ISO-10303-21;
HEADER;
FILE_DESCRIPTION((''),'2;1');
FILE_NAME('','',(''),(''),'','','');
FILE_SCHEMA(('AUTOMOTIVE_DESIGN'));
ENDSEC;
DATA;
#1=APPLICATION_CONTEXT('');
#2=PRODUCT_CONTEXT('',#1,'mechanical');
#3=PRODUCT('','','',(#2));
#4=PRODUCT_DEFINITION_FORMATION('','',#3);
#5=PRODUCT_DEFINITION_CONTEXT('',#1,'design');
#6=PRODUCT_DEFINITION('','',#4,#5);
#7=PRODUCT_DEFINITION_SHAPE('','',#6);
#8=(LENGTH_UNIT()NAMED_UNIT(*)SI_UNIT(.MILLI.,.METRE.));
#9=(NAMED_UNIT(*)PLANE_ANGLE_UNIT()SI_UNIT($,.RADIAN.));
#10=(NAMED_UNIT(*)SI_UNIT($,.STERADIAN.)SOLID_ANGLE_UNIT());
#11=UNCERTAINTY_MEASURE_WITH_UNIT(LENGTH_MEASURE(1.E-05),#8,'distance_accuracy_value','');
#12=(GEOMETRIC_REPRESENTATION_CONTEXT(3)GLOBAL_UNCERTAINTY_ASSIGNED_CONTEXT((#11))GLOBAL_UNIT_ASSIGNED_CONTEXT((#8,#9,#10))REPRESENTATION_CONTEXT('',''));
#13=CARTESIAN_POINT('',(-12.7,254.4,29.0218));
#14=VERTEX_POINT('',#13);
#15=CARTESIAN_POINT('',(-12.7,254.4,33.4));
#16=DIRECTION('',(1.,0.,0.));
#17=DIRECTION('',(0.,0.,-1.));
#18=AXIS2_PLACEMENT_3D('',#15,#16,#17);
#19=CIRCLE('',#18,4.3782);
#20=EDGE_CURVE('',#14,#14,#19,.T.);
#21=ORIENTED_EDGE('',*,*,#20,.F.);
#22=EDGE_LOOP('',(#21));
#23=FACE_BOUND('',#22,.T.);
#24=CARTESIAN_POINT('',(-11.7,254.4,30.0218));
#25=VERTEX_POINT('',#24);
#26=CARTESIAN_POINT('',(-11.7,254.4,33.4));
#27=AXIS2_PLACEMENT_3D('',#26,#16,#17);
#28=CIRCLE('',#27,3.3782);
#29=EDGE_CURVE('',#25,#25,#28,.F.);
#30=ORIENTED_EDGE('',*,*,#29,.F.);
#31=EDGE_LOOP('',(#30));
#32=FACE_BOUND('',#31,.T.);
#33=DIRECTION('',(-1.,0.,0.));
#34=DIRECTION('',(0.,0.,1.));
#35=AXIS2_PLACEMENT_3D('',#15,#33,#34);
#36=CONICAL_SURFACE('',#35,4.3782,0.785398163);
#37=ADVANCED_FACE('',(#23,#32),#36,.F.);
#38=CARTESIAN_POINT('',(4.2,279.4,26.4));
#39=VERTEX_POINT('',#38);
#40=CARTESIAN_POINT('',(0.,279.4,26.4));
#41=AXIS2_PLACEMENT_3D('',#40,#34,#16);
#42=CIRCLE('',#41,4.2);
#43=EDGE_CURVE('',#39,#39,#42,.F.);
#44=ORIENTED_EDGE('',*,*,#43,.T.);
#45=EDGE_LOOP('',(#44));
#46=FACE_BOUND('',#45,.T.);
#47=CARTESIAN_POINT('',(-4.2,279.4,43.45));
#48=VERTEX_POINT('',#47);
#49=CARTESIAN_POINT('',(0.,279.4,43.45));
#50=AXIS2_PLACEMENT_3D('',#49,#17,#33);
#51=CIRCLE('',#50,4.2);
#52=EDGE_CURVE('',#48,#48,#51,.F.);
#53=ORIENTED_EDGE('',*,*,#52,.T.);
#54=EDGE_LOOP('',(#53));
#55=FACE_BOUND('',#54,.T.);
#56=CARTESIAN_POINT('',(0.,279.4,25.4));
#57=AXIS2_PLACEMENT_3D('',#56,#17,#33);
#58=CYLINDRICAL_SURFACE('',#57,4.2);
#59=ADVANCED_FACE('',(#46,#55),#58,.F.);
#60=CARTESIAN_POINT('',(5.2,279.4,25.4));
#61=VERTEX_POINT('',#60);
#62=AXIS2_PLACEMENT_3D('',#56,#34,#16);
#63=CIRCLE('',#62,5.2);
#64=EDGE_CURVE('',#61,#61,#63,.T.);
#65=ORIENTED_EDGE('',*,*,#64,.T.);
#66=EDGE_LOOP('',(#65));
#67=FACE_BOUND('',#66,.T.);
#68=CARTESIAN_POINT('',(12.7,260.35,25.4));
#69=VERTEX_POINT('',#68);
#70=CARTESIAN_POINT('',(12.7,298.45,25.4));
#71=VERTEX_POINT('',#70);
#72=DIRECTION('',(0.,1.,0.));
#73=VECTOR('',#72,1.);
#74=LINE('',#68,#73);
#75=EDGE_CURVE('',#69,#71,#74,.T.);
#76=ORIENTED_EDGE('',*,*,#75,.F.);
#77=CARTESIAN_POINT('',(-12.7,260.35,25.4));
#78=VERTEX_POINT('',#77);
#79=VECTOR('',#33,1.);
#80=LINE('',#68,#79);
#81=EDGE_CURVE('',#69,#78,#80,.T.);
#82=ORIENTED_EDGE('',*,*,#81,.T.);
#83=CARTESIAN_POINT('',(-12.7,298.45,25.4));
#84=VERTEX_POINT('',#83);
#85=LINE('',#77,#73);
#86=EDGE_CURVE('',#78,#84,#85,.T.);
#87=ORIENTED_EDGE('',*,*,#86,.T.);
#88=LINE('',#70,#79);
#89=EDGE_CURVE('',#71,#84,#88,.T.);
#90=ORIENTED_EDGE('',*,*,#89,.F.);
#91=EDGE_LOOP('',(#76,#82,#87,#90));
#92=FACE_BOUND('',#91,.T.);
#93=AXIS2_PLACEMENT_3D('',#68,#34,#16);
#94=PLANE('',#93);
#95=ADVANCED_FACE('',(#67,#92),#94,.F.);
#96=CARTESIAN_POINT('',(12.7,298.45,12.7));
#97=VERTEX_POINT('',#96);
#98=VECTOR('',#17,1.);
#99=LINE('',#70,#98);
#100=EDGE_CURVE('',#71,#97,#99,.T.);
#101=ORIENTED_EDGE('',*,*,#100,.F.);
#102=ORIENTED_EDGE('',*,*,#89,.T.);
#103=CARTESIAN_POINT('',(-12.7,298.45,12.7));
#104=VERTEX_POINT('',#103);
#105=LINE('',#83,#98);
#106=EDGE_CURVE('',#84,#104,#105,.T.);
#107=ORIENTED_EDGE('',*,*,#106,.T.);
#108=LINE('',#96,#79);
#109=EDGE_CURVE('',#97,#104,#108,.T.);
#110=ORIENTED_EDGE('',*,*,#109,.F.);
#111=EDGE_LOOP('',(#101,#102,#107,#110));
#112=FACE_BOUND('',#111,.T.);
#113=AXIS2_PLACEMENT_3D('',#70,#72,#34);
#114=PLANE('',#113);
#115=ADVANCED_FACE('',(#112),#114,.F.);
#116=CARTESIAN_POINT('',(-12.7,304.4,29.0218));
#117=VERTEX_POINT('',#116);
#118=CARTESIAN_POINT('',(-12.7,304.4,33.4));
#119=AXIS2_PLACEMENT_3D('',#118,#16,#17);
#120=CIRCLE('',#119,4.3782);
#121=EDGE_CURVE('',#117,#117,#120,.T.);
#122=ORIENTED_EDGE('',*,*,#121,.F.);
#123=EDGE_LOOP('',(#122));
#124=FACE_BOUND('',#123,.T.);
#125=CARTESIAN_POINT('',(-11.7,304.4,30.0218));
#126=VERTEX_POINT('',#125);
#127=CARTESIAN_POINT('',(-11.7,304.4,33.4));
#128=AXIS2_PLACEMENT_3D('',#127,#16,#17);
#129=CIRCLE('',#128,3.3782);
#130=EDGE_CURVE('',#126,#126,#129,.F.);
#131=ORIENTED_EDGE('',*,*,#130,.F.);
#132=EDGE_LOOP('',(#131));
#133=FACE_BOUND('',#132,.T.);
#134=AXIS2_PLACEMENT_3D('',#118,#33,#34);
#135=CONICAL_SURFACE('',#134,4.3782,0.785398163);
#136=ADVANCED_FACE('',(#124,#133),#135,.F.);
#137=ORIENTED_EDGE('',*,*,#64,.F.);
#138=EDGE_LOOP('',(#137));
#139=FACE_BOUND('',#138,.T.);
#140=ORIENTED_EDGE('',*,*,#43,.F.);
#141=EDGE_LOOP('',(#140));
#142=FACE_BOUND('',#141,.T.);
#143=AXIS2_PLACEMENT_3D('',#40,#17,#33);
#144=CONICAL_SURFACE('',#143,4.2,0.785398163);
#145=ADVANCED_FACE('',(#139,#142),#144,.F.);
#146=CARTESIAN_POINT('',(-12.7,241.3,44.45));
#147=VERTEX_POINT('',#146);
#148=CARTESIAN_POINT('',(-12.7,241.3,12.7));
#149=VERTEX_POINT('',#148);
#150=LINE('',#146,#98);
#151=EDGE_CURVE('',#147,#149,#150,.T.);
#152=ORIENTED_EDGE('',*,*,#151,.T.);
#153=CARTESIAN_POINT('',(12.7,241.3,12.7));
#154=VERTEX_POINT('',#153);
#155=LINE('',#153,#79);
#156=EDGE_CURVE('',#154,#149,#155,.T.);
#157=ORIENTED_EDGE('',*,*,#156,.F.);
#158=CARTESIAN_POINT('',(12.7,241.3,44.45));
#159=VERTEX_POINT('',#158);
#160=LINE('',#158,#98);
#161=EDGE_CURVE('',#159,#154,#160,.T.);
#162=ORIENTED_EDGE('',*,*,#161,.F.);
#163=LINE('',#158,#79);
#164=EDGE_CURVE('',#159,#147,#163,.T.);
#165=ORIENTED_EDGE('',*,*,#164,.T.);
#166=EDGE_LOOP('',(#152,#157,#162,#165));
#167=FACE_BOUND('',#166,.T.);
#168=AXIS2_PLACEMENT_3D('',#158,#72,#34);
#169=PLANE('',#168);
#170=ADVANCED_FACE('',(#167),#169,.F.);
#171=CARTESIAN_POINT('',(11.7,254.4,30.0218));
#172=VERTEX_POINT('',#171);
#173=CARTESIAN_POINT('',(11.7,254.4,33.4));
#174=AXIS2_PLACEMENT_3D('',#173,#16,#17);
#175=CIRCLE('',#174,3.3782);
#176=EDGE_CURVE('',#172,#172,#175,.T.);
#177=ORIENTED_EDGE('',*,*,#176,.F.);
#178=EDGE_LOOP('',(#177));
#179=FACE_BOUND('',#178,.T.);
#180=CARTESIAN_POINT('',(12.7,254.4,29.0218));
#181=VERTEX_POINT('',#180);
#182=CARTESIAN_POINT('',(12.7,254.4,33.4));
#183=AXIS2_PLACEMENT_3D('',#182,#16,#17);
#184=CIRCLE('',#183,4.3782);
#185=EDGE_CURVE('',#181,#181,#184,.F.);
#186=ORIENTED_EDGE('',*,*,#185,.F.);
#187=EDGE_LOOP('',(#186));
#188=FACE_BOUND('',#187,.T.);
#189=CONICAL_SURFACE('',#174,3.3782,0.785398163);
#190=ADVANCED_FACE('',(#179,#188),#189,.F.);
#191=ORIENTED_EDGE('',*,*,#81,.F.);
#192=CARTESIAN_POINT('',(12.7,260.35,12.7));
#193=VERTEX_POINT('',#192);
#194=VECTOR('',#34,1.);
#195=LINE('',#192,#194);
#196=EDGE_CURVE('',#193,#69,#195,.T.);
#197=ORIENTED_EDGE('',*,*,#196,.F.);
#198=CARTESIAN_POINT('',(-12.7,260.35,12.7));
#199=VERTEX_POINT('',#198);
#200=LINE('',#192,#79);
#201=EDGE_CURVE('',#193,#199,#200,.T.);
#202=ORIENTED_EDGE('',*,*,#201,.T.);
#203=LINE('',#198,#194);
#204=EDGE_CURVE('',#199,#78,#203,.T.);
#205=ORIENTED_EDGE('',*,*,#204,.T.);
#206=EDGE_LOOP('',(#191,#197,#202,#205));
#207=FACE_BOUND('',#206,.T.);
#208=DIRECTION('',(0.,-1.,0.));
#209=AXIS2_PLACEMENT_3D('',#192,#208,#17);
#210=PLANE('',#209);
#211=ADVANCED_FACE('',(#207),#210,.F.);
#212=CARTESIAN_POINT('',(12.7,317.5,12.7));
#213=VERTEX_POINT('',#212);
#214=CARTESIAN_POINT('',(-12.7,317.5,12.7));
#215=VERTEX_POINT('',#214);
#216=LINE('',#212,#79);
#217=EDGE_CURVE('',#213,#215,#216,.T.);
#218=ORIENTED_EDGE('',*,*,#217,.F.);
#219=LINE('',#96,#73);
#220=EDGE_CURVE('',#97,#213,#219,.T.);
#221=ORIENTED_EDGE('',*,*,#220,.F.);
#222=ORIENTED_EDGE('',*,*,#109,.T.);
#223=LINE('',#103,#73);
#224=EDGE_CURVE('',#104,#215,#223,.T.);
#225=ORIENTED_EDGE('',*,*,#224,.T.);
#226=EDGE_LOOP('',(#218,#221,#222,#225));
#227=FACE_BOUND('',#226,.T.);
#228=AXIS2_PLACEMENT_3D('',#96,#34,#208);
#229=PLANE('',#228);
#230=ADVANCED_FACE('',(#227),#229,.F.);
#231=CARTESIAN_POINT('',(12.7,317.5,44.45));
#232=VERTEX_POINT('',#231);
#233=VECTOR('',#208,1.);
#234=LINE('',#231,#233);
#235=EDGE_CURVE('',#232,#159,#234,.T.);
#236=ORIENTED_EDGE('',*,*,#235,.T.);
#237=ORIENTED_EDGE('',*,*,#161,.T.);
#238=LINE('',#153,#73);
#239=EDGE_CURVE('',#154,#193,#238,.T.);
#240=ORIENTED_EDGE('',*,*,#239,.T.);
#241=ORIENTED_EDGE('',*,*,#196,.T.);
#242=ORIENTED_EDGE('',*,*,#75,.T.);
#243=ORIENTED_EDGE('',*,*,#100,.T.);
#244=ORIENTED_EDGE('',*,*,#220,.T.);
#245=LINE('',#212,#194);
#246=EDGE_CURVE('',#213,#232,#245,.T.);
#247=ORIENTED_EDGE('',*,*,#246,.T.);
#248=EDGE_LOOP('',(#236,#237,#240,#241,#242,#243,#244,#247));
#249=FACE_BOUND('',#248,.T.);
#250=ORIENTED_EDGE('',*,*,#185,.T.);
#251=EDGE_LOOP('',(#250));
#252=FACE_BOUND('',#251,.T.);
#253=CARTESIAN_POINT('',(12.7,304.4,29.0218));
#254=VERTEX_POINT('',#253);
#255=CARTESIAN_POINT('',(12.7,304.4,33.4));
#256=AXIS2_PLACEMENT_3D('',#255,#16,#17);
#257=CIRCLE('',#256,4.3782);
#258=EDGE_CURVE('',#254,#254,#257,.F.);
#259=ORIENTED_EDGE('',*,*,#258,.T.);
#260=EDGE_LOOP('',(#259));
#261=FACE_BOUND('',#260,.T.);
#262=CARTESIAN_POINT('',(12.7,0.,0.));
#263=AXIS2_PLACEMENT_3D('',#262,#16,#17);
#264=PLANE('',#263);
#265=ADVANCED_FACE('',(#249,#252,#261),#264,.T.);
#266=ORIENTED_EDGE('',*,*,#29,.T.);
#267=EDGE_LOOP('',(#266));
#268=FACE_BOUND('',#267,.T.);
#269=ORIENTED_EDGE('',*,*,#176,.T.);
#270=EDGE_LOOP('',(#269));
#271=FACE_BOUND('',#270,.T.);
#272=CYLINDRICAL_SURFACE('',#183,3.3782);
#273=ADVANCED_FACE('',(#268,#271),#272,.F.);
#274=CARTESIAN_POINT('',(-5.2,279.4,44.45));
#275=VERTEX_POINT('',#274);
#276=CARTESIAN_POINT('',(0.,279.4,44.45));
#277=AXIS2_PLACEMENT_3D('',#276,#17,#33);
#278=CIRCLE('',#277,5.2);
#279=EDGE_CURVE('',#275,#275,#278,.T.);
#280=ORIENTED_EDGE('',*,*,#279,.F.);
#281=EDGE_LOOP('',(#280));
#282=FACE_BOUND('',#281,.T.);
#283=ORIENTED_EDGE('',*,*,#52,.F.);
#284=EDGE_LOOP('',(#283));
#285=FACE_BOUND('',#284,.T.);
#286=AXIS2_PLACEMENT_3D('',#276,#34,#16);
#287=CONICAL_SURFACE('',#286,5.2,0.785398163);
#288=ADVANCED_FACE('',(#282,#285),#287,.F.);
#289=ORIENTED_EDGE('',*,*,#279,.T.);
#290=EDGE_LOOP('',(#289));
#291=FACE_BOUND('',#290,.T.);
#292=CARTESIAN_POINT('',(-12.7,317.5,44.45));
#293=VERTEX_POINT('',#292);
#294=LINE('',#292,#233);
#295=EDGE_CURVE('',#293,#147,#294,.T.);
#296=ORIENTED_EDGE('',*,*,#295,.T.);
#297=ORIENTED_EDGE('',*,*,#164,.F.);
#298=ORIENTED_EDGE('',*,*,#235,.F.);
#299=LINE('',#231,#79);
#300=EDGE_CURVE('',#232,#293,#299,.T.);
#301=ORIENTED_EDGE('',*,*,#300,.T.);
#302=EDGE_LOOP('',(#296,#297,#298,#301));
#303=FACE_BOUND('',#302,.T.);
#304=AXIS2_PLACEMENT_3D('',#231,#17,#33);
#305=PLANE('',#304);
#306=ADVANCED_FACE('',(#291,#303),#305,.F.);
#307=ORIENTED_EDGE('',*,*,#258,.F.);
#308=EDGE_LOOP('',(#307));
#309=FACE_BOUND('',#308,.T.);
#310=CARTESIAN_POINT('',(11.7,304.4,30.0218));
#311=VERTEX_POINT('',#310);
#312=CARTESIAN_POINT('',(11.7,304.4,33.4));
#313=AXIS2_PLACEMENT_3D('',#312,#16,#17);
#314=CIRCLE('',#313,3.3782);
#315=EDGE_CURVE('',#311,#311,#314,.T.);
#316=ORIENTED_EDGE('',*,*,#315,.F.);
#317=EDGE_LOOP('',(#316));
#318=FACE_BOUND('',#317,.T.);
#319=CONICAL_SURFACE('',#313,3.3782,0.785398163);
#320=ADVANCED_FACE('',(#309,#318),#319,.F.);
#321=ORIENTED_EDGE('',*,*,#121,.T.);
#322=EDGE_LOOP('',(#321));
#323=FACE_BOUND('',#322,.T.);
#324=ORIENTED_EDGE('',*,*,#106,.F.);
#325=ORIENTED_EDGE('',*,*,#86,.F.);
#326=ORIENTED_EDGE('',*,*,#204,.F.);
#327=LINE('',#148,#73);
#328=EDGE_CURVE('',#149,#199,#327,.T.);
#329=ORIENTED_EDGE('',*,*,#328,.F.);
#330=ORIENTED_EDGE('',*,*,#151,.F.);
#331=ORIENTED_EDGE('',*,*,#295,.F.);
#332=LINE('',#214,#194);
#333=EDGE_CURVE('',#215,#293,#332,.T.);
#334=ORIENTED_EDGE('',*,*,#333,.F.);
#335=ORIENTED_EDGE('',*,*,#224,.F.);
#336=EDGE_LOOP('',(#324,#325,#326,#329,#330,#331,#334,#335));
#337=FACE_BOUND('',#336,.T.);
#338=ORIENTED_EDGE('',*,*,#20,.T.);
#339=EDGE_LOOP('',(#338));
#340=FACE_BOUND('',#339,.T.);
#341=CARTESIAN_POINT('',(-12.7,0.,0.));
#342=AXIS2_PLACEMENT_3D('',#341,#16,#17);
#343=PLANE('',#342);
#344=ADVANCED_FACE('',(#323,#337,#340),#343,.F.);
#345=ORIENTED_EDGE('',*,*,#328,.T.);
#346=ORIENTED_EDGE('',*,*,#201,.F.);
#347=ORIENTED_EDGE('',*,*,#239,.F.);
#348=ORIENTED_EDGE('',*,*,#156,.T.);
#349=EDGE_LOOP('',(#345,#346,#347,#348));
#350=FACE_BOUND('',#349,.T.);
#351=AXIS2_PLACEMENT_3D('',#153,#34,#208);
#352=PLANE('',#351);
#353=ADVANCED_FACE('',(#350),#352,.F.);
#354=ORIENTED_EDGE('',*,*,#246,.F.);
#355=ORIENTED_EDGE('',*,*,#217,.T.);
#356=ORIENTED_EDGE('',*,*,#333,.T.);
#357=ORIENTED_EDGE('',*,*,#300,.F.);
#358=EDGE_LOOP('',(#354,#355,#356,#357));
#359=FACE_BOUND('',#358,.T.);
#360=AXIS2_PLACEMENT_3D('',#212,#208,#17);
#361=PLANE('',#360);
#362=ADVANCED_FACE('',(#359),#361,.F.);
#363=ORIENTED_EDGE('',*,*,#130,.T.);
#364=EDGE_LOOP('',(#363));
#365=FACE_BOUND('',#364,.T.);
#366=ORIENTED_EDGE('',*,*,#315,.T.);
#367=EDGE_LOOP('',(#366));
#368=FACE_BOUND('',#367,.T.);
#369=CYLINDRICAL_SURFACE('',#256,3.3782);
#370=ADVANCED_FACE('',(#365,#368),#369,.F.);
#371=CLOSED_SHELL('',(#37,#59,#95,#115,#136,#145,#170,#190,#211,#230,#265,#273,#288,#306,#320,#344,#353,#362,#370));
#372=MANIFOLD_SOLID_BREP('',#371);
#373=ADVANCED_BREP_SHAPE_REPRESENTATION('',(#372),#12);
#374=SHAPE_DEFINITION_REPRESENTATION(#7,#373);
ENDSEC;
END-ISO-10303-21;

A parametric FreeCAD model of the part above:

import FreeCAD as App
import Part
import Sketcher
Q = App.Units.Quantity


def edges_at(feature, points):
    """Names of the edges that pass closest to the given points."""
    edges = feature.Shape.Edges
    near = lambda p: min(range(len(edges)), key=lambda i: edges[i].distToShape(Part.Vertex(*p))[0])
    return sorted({f"Edge{near(p) + 1}" for p in points})

doc = App.newDocument("Part")
body = doc.addObject("PartDesign::Body", "Body")

sketch1 = doc.addObject("Sketcher::SketchObject", "Sketch")
body.addObject(sketch1)
sketch1.AttachmentSupport = (doc.YZ_Plane, [""])
sketch1.MapMode = "FlatFace"
sketch1.addGeometry([
    Part.LineSegment(App.Vector(241, 44, 0), App.Vector(241, 13, 0)),
    Part.LineSegment(App.Vector(241, 13, 0), App.Vector(260, 13, 0)),
    Part.LineSegment(App.Vector(260, 13, 0), App.Vector(260, 25, 0)),
    Part.LineSegment(App.Vector(260, 25, 0), App.Vector(298, 25, 0)),
    Part.LineSegment(App.Vector(298, 25, 0), App.Vector(298, 13, 0)),
    Part.LineSegment(App.Vector(298, 13, 0), App.Vector(318, 13, 0)),
    Part.LineSegment(App.Vector(318, 13, 0), App.Vector(318, 44, 0)),
    Part.LineSegment(App.Vector(318, 44, 0), App.Vector(241, 44, 0)),
], False)
sketch1.addConstraint([
    Sketcher.Constraint("Coincident", 0, 2, 1, 1),
    Sketcher.Constraint("Coincident", 1, 2, 2, 1),
    Sketcher.Constraint("Coincident", 2, 2, 3, 1),
    Sketcher.Constraint("Coincident", 3, 2, 4, 1),
    Sketcher.Constraint("Coincident", 4, 2, 5, 1),
    Sketcher.Constraint("Coincident", 5, 2, 6, 1),
    Sketcher.Constraint("Coincident", 6, 2, 7, 1),
    Sketcher.Constraint("Coincident", 7, 2, 0, 1),
    Sketcher.Constraint("Vertical", 0),
    Sketcher.Constraint("Horizontal", 1),
    Sketcher.Constraint("Vertical", 2),
    Sketcher.Constraint("Horizontal", 3),
    Sketcher.Constraint("Vertical", 4),
    Sketcher.Constraint("Horizontal", 5),
    Sketcher.Constraint("Vertical", 6),
    Sketcher.Constraint("Horizontal", 7),
    Sketcher.Constraint("Horizontal", 1, 2, 4, 2),
    Sketcher.Constraint("Equal", 1, 5),
    Sketcher.Constraint("DistanceX", 7, 2, 7, 1, Q("3 in")),
    Sketcher.Constraint("DistanceX", 3, 1, 3, 2, Q("1.5 in")),
    Sketcher.Constraint("DistanceY", 2, 1, 2, 2, Q("0.5 in")),
    Sketcher.Constraint("DistanceY", -1, 1, 2, 2, Q("1 in")),
    Sketcher.Constraint("DistanceY", 0, 2, 0, 1, Q("1.25 in")),
    Sketcher.Constraint("DistanceX", -1, 1, 0, 2, Q("9.5 in")),
])
pad1 = doc.addObject("PartDesign::Pad", "Pad")
body.addObject(pad1)
pad1.Profile = sketch1
pad1.Length = Q("1 in")
pad1.Midplane = True

sketch2 = doc.addObject("Sketcher::SketchObject", "Sketch001")
body.addObject(sketch2)
sketch2.AttachmentSupport = (doc.YZ_Plane, [""])
sketch2.MapMode = "FlatFace"
sketch2.AttachmentOffset = App.Placement(App.Vector(0, 0, 0.5 * 25.4), App.Rotation())
sketch2.addGeometry([
    Part.Circle(App.Vector(304.4, 33.4, 0), App.Vector(0, 0, 1), 3.4),
    Part.Circle(App.Vector(254.4, 33.4, 0), App.Vector(0, 0, 1), 3.4),
], False)
sketch2.addConstraint([
    Sketcher.Constraint("Equal", 0, 1),
    Sketcher.Constraint("Horizontal", 0, 3, 1, 3),
    Sketcher.Constraint("Diameter", 0, Q("0.266 in")),
    Sketcher.Constraint("DistanceX", -1, 1, 0, 3, Q("304.4 mm")),
    Sketcher.Constraint("DistanceY", -1, 1, 0, 3, Q("33.4 mm")),
    Sketcher.Constraint("DistanceX", -1, 1, 1, 3, Q("254.4 mm")),
])
doc.recompute()
hole = doc.addObject("PartDesign::Hole", "Hole")
body.addObject(hole)
hole.Profile = sketch2
hole.ThreadType = "None"
hole.Diameter = Q("0.266 in")
hole.DepthType = "ThroughAll"

sketch3 = doc.addObject("Sketcher::SketchObject", "Sketch002")
body.addObject(sketch3)
sketch3.AttachmentSupport = (doc.XY_Plane, [""])
sketch3.MapMode = "FlatFace"
sketch3.AttachmentOffset = App.Placement(App.Vector(0, 0, 1 * 25.4), App.Rotation())
sketch3.addGeometry(Part.Circle(App.Vector(0, 279.4, 0), App.Vector(0, 0, 1), 4.2), False)
sketch3.addConstraint([
    Sketcher.Constraint("PointOnObject", 0, 3, -2),
    Sketcher.Constraint("DistanceY", -1, 1, 0, 3, Q("11 in")),
    Sketcher.Constraint("Diameter", 0, Q("8.4 mm")),
])
doc.recompute()
hole2 = doc.addObject("PartDesign::Hole", "Hole001")
body.addObject(hole2)
hole2.Profile = sketch3
hole2.ThreadType = "None"
hole2.Diameter = 8.4
hole2.DepthType = "ThroughAll"
hole2.Reversed = True
doc.recompute()

chamfer = doc.addObject("PartDesign::Chamfer", "Chamfer")
body.addObject(chamfer)
chamfer.Base = (hole2, edges_at(hole2, [
    (12.7, 254.4, 30.022),
    (-12.7, 254.4, 30.022),
    (12.7, 304.4, 30.022),
    (-12.7, 304.4, 30.022),
    (-4.2, 279.4, 25.4),
    (-4.2, 279.4, 44.45),
]))
chamfer.Size = 1

doc.recompute()
